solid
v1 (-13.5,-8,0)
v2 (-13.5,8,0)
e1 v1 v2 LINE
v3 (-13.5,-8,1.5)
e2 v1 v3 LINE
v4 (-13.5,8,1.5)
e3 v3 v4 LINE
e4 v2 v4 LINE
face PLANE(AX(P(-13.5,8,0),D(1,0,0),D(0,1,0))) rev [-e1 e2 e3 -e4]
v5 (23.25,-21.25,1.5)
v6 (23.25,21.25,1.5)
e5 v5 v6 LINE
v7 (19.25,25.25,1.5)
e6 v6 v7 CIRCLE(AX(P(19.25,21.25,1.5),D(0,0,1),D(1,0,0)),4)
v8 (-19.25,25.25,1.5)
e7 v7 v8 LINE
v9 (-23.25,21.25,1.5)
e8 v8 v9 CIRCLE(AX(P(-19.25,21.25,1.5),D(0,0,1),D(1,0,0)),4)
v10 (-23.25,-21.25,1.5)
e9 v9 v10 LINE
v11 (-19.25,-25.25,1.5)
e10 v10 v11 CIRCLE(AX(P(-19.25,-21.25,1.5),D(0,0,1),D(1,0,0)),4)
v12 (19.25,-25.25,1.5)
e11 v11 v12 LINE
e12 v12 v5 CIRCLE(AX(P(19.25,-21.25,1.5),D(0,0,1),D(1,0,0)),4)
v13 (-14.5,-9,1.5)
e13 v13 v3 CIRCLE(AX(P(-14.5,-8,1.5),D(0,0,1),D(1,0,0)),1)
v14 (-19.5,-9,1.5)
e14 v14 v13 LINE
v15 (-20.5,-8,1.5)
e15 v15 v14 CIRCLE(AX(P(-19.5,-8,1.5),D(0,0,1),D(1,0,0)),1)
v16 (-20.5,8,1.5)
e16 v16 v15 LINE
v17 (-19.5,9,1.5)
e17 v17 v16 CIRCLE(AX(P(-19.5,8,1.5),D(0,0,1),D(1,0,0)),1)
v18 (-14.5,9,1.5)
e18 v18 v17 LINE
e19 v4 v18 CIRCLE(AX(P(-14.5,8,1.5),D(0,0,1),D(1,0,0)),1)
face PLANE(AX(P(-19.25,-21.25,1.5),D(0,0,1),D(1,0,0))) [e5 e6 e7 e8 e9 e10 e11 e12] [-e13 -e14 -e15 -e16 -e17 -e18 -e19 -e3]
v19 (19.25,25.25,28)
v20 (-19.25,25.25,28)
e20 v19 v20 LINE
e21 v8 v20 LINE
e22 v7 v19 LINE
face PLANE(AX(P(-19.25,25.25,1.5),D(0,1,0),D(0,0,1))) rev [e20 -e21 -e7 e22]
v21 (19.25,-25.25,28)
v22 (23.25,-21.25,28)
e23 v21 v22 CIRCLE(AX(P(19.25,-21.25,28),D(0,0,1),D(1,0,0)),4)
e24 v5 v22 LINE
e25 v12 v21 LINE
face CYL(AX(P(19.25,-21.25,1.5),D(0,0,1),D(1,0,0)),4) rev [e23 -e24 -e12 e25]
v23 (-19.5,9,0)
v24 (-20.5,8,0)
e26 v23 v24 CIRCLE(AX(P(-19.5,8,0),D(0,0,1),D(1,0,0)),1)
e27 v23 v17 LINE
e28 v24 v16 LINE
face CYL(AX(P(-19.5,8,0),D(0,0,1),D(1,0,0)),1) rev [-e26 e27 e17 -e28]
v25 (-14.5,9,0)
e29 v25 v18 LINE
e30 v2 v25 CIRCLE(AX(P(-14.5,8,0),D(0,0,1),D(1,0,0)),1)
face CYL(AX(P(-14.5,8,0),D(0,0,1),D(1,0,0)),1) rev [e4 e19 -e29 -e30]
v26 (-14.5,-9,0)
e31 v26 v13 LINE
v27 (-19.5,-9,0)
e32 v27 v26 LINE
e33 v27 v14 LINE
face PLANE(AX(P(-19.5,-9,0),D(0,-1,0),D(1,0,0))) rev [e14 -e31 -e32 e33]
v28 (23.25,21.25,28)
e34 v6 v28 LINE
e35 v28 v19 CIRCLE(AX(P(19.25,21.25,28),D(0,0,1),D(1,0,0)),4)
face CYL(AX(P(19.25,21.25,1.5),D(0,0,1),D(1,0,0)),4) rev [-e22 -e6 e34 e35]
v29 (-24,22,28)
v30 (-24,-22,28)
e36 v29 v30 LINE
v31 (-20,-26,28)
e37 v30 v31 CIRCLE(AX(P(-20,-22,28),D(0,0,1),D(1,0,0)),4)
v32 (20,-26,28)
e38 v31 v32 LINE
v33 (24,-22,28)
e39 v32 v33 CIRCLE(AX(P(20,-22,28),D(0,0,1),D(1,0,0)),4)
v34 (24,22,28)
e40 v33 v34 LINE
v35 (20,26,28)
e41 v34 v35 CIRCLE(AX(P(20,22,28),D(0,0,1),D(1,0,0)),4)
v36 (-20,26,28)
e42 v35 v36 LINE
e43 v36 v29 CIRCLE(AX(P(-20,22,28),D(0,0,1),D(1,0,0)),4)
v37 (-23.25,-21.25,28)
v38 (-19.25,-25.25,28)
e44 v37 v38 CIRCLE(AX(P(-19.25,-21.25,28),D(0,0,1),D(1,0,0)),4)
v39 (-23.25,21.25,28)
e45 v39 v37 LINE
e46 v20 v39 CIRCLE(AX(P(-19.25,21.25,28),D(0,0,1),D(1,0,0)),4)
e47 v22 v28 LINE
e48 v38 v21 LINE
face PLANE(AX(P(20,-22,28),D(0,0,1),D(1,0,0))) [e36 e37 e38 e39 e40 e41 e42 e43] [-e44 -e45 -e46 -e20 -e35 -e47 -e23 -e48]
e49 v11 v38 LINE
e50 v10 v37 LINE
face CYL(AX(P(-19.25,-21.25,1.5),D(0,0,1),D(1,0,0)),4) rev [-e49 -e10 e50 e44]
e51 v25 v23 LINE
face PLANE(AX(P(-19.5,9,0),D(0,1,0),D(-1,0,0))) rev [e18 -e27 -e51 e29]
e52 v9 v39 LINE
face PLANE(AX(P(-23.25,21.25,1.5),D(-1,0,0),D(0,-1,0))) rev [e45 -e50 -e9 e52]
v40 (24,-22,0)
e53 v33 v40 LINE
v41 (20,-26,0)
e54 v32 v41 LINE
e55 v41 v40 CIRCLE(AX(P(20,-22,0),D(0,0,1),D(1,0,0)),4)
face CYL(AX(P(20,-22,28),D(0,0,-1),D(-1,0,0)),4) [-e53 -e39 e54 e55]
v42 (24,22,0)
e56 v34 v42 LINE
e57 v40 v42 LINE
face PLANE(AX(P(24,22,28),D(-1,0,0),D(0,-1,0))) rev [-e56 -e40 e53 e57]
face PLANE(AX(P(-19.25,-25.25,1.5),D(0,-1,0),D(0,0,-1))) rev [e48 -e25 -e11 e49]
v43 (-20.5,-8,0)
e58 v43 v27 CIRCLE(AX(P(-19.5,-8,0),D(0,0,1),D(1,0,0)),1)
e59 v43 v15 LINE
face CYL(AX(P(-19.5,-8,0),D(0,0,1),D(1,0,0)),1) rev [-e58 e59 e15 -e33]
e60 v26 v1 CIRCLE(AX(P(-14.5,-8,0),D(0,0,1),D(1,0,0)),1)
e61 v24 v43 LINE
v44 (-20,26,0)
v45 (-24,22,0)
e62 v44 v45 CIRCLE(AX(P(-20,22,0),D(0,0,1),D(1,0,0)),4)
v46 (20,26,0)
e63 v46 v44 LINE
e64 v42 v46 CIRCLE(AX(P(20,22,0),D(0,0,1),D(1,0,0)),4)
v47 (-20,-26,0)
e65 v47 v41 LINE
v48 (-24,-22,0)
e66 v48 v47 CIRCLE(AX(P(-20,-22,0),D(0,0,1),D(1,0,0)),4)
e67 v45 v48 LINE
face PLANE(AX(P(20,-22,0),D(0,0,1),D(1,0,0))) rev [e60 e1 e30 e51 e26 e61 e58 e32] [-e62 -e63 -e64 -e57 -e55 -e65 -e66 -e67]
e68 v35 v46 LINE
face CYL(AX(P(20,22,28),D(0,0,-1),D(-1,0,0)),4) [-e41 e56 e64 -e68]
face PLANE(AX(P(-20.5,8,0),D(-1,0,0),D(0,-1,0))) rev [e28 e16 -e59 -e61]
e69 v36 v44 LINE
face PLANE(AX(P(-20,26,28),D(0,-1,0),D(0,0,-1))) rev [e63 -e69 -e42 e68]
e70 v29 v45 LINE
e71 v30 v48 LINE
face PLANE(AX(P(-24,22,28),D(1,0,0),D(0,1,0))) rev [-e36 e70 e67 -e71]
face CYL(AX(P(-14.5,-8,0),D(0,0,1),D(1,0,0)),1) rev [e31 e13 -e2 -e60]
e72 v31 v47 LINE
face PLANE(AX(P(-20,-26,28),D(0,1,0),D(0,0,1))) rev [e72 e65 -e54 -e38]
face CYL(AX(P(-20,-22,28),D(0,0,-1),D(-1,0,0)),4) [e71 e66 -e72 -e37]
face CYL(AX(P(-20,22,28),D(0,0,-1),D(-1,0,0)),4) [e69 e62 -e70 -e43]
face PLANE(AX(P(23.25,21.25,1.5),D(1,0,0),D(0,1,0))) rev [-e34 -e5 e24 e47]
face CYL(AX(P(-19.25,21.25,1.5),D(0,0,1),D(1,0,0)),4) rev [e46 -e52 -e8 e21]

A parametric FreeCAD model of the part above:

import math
import FreeCAD as App
import Part
import Sketcher
from FreeCAD import Vector
Q = App.Units.Quantity

doc = App.newDocument("Part")
body = doc.addObject("PartDesign::Body", "Body")

sketch1 = body.newObject("Sketcher::SketchObject", "Sketch")
sketch1.AttachmentSupport = (doc.getObject("XY_Plane"), [""])
sketch1.MapMode = "FlatFace"
sketch1.addGeometry(Part.LineSegment(Vector(20, 26, 0), Vector(-20, 26, 0)), False)
sketch1.addGeometry(Part.ArcOfCircle(Part.Circle(Vector(-20, 22, 0), Vector(0, 0, 1), 4), math.radians(90), math.radians(180)), False)
sketch1.addGeometry(Part.LineSegment(Vector(-24, 22, 0), Vector(-24, -22, 0)), False)
sketch1.addGeometry(Part.ArcOfCircle(Part.Circle(Vector(-20, -22, 0), Vector(0, 0, 1), 4), math.radians(180), math.radians(270)), False)
sketch1.addGeometry(Part.LineSegment(Vector(-20, -26, 0), Vector(20, -26, 0)), False)
sketch1.addGeometry(Part.ArcOfCircle(Part.Circle(Vector(20, -22, 0), Vector(0, 0, 1), 4), math.radians(-90), math.radians(0)), False)
sketch1.addGeometry(Part.LineSegment(Vector(24, -22, 0), Vector(24, 22, 0)), False)
sketch1.addGeometry(Part.ArcOfCircle(Part.Circle(Vector(20, 22, 0), Vector(0, 0, 1), 4), math.radians(0), math.radians(90)), False)
sketch1.addConstraint(Sketcher.Constraint("Tangent", 0, 2, 1, 1))
sketch1.addConstraint(Sketcher.Constraint("Tangent", 1, 2, 2, 1))
sketch1.addConstraint(Sketcher.Constraint("Tangent", 2, 2, 3, 1))
sketch1.addConstraint(Sketcher.Constraint("Tangent", 3, 2, 4, 1))
sketch1.addConstraint(Sketcher.Constraint("Tangent", 4, 2, 5, 1))
sketch1.addConstraint(Sketcher.Constraint("Tangent", 5, 2, 6, 1))
sketch1.addConstraint(Sketcher.Constraint("Tangent", 6, 2, 7, 1))
sketch1.addConstraint(Sketcher.Constraint("Tangent", 7, 2, 0, 1))
sketch1.addConstraint(Sketcher.Constraint("Horizontal", 0))
sketch1.addConstraint(Sketcher.Constraint("Vertical", 2))
sketch1.addConstraint(Sketcher.Constraint("Horizontal", 4))
sketch1.addConstraint(Sketcher.Constraint("Vertical", 6))
sketch1.addConstraint(Sketcher.Constraint("Equal", 1, 3))
sketch1.addConstraint(Sketcher.Constraint("Equal", 3, 5))
sketch1.addConstraint(Sketcher.Constraint("Equal", 5, 7))
sketch1.addConstraint(Sketcher.Constraint("Symmetric", 1, 3, 5, 3, -1, 1))
sketch1.addConstraint(Sketcher.Constraint("Radius", 1, Q("4 mm")))
sketch1.addConstraint(Sketcher.Constraint("DistanceX", 0, 2, 0, 1, Q("40 mm")))
sketch1.addConstraint(Sketcher.Constraint("DistanceY", 2, 2, 2, 1, Q("44 mm")))
pad1 = body.newObject("PartDesign::Pad", "Pad")
pad1.Profile = sketch1
pad1.Length = 28

sketch2 = body.newObject("Sketcher::SketchObject", "Sketch001")
sketch2.AttachmentSupport = (doc.getObject("XY_Plane"), [""])
sketch2.MapMode = "FlatFace"
sketch2.AttachmentOffset = App.Placement(Vector(0, 0, 28), App.Rotation())
sketch2.addGeometry(Part.LineSegment(Vector(19.2, 25.2, 0), Vector(-19.2, 25.2, 0)), False)
sketch2.addGeometry(Part.ArcOfCircle(Part.Circle(Vector(-19.3, 21.3, 0), Vector(0, 0, 1), 4), math.radians(90), math.radians(180)), False)
sketch2.addGeometry(Part.LineSegment(Vector(-23.2, 21.2, 0), Vector(-23.2, -21.2, 0)), False)
sketch2.addGeometry(Part.ArcOfCircle(Part.Circle(Vector(-19.3, -21.3, 0), Vector(0, 0, 1), 4), math.radians(180), math.radians(270)), False)
sketch2.addGeometry(Part.LineSegment(Vector(-19.2, -25.2, 0), Vector(19.2, -25.2, 0)), False)
sketch2.addGeometry(Part.ArcOfCircle(Part.Circle(Vector(19.3, -21.3, 0), Vector(0, 0, 1), 4), math.radians(-90), math.radians(0)), False)
sketch2.addGeometry(Part.LineSegment(Vector(23.2, -21.2, 0), Vector(23.2, 21.2, 0)), False)
sketch2.addGeometry(Part.ArcOfCircle(Part.Circle(Vector(19.3, 21.3, 0), Vector(0, 0, 1), 4), math.radians(0), math.radians(90)), False)
sketch2.addConstraint(Sketcher.Constraint("Tangent", 0, 2, 1, 1))
sketch2.addConstraint(Sketcher.Constraint("Tangent", 1, 2, 2, 1))
sketch2.addConstraint(Sketcher.Constraint("Tangent", 2, 2, 3, 1))
sketch2.addConstraint(Sketcher.Constraint("Tangent", 3, 2, 4, 1))
sketch2.addConstraint(Sketcher.Constraint("Tangent", 4, 2, 5, 1))
sketch2.addConstraint(Sketcher.Constraint("Tangent", 5, 2, 6, 1))
sketch2.addConstraint(Sketcher.Constraint("Tangent", 6, 2, 7, 1))
sketch2.addConstraint(Sketcher.Constraint("Tangent", 7, 2, 0, 1))
sketch2.addConstraint(Sketcher.Constraint("Horizontal", 0))
sketch2.addConstraint(Sketcher.Constraint("Vertical", 2))
sketch2.addConstraint(Sketcher.Constraint("Horizontal", 4))
sketch2.addConstraint(Sketcher.Constraint("Vertical", 6))
sketch2.addConstraint(Sketcher.Constraint("Equal", 1, 3))
sketch2.addConstraint(Sketcher.Constraint("Equal", 3, 5))
sketch2.addConstraint(Sketcher.Constraint("Equal", 5, 7))
sketch2.addConstraint(Sketcher.Constraint("Symmetric", 1, 3, 5, 3, -1, 1))
sketch2.addConstraint(Sketcher.Constraint("Radius", 1, Q("4 mm")))
sketch2.addConstraint(Sketcher.Constraint("DistanceX", 0, 2, 0, 1, Q("38.5 mm")))
sketch2.addConstraint(Sketcher.Constraint("DistanceY", 2, 2, 2, 1, Q("42.5 mm")))
pocket1 = body.newObject("PartDesign::Pocket", "Pocket")
pocket1.Profile = sketch2
pocket1.Length = 26.5

sketch3 = body.newObject("Sketcher::SketchObject", "Sketch002")
sketch3.AttachmentSupport = (doc.getObject("XY_Plane"), [""])
sketch3.MapMode = "FlatFace"
sketch3.AttachmentOffset = App.Placement(Vector(0, 0, 1.5), App.Rotation())
sketch3.addGeometry(Part.LineSegment(Vector(-14.5, 9, 0), Vector(-19.5, 9, 0)), False)
sketch3.addGeometry(Part.ArcOfCircle(Part.Circle(Vector(-19.5, 8, 0), Vector(0, 0, 1), 1), math.radians(90), math.radians(180)), False)
sketch3.addGeometry(Part.LineSegment(Vector(-20.5, 8, 0), Vector(-20.5, -8, 0)), False)
sketch3.addGeometry(Part.ArcOfCircle(Part.Circle(Vector(-19.5, -8, 0), Vector(0, 0, 1), 1), math.radians(-180), math.radians(-90)), False)
sketch3.addGeometry(Part.LineSegment(Vector(-19.5, -9, 0), Vector(-14.5, -9, 0)), False)
sketch3.addGeometry(Part.ArcOfCircle(Part.Circle(Vector(-14.5, -8, 0), Vector(0, 0, 1), 1), math.radians(-90), math.radians(0)), False)
sketch3.addGeometry(Part.LineSegment(Vector(-13.5, -8, 0), Vector(-13.5, 8, 0)), False)
sketch3.addGeometry(Part.ArcOfCircle(Part.Circle(Vector(-14.5, 8, 0), Vector(0, 0, 1), 1), math.radians(0), math.radians(90)), False)
sketch3.addConstraint(Sketcher.Constraint("Tangent", 0, 2, 1, 1))
sketch3.addConstraint(Sketcher.Constraint("Tangent", 1, 2, 2, 1))
sketch3.addConstraint(Sketcher.Constraint("Tangent", 2, 2, 3, 1))
sketch3.addConstraint(Sketcher.Constraint("Tangent", 3, 2, 4, 1))
sketch3.addConstraint(Sketcher.Constraint("Tangent", 4, 2, 5, 1))
sketch3.addConstraint(Sketcher.Constraint("Tangent", 5, 2, 6, 1))
sketch3.addConstraint(Sketcher.Constraint("Tangent", 6, 2, 7, 1))
sketch3.addConstraint(Sketcher.Constraint("Tangent", 7, 2, 0, 1))
sketch3.addConstraint(Sketcher.Constraint("Horizontal", 0))
sketch3.addConstraint(Sketcher.Constraint("Vertical", 2))
sketch3.addConstraint(Sketcher.Constraint("Horizontal", 4))
sketch3.addConstraint(Sketcher.Constraint("Vertical", 6))
sketch3.addConstraint(Sketcher.Constraint("Equal", 1, 3))
sketch3.addConstraint(Sketcher.Constraint("Equal", 3, 5))
sketch3.addConstraint(Sketcher.Constraint("Equal", 5, 7))
sketch3.addConstraint(Sketcher.Constraint("Radius", 1, Q("1 mm")))
sketch3.addConstraint(Sketcher.Constraint("DistanceX", 0, 2, 0, 1, Q("5 mm")))
sketch3.addConstraint(Sketcher.Constraint("DistanceY", 2, 2, 2, 1, Q("16 mm")))
sketch3.addConstraint(Sketcher.Constraint("DistanceY", -1, 1, 1, 3, Q("8 mm")))
sketch3.addConstraint(Sketcher.Constraint("DistanceX", 1, 3, -1, 1, Q("19.5 mm")))
pocket2 = body.newObject("PartDesign::Pocket", "Pocket001")
pocket2.Profile = sketch3
pocket2.Type = "ThroughAll"

doc.recompute()
